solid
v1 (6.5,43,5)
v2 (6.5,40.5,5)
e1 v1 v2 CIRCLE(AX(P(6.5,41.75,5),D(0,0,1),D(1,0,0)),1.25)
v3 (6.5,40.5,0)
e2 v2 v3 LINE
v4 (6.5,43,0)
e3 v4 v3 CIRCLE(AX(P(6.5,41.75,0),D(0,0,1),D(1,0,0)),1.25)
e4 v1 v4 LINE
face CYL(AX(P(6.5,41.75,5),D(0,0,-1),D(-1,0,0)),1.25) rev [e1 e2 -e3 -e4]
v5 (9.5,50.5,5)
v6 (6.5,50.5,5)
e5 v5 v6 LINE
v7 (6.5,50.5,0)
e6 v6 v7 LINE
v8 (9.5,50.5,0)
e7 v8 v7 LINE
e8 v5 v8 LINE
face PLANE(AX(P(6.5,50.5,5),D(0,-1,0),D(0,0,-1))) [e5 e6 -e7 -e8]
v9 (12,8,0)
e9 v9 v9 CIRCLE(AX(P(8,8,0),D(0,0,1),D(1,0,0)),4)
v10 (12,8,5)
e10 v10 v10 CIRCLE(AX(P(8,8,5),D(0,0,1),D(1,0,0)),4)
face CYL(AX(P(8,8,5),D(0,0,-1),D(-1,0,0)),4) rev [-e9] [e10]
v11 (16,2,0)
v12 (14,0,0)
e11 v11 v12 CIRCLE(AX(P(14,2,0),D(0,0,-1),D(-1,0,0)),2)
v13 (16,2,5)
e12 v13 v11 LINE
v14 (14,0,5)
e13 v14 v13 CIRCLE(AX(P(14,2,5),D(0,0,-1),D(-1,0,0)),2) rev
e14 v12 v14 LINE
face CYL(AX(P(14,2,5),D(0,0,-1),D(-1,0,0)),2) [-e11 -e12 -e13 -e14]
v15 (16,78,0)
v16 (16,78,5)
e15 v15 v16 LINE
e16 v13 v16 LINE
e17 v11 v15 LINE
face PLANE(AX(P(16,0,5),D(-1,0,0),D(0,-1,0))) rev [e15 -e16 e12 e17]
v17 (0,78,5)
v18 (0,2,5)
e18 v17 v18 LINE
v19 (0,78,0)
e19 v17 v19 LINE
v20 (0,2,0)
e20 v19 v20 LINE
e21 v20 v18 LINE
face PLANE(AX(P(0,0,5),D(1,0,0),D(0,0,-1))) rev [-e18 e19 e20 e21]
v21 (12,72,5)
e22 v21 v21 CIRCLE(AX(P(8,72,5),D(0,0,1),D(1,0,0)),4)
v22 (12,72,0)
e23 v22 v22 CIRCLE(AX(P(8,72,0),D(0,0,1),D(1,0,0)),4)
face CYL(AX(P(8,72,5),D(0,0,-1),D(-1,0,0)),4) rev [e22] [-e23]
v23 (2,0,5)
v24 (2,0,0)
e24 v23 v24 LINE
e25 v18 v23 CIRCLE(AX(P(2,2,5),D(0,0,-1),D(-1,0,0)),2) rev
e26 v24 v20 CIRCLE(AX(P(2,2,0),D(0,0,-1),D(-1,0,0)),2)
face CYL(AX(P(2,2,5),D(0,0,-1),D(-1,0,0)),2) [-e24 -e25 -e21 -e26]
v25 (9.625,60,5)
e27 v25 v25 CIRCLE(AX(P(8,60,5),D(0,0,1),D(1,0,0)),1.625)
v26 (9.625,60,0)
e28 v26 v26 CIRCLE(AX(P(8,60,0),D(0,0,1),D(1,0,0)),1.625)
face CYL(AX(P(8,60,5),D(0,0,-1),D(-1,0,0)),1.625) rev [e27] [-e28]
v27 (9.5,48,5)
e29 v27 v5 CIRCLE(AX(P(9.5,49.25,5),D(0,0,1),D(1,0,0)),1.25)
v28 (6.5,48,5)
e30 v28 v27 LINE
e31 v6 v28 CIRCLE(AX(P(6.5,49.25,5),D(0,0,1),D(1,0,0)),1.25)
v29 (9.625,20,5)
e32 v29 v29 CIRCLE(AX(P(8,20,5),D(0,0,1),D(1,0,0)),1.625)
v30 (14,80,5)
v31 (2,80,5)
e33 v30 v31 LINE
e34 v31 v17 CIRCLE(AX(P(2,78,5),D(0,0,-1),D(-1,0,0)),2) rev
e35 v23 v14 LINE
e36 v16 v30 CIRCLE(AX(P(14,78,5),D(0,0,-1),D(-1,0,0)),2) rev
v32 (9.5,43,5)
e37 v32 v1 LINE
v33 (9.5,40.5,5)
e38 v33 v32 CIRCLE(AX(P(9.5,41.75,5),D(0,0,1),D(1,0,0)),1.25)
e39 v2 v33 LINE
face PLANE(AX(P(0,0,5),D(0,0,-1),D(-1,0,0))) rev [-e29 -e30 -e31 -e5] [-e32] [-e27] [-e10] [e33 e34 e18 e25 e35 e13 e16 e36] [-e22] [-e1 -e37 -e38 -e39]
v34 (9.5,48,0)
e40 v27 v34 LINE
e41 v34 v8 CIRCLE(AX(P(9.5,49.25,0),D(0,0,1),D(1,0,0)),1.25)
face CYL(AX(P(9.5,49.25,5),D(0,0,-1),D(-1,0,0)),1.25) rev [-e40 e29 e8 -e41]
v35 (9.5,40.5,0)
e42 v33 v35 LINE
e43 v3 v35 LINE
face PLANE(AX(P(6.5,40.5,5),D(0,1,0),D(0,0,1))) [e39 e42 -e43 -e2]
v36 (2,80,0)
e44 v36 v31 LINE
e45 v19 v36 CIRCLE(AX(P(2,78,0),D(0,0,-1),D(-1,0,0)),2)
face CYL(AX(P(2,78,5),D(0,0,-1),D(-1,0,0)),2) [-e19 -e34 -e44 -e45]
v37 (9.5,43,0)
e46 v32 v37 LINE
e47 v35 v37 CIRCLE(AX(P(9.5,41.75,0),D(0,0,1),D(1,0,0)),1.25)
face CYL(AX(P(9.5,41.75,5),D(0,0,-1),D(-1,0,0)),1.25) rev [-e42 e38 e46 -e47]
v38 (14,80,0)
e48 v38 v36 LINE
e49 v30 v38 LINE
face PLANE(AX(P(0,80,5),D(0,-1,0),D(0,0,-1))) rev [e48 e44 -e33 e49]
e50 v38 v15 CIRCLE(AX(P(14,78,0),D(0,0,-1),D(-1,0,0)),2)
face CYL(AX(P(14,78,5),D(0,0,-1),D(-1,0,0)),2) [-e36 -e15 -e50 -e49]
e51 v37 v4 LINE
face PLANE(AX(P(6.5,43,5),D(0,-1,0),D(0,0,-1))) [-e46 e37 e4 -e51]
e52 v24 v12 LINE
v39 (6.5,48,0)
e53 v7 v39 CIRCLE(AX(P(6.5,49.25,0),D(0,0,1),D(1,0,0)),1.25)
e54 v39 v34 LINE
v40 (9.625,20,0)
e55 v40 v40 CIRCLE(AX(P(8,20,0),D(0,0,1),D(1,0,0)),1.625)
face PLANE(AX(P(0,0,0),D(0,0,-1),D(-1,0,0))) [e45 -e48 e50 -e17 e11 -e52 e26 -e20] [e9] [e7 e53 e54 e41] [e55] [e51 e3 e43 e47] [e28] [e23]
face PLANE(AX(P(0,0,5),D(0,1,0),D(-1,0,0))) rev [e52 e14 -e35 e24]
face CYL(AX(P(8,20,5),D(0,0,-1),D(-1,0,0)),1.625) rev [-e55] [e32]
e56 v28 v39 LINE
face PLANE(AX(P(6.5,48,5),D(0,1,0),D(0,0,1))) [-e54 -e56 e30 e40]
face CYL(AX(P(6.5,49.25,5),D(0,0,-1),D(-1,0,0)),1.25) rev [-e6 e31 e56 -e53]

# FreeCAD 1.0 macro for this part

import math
import FreeCAD as App
import Part
import Sketcher

V = App.Vector
Q = App.Units.Quantity


def edges_at(feature, points):
    """Names of the edges that pass closest to the given points."""
    edges = feature.Shape.Edges
    near = lambda p: min(range(len(edges)), key=lambda i: edges[i].distToShape(Part.Vertex(*p))[0])
    return sorted({f"Edge{near(p) + 1}" for p in points})


def add_polygon(sketch, points):
    """Adds a closed chain of lines whose ends are joined by coincident constraints."""
    first, n = sketch.GeometryCount, len(points)
    for a, b in zip(points, points[1:] + points[:1]):
        sketch.addGeometry(Part.LineSegment(App.Vector(*a, 0), App.Vector(*b, 0)), False)
    for i in range(n):
        sketch.addConstraint(Sketcher.Constraint("Coincident", first + i, 2, first + (i + 1) % n, 1))

doc = App.newDocument("Part")
body = doc.addObject("PartDesign::Body", "Body")

# Sketch on XY plane
sketch1 = doc.addObject("Sketcher::SketchObject", "Sketch")
body.addObject(sketch1)
sketch1.AttachmentSupport = (doc.XY_Plane, [""])
sketch1.MapMode = "FlatFace"
add_polygon(sketch1, [(0, 80), (0, 0), (16, 0), (16, 80)])  # lines 0-3
sketch1.addGeometry(Part.Circle(V(8, 8, 0), V(0, 0, 1), 4), False)  # 4
sketch1.addGeometry(Part.Circle(V(8, 20, 0), V(0, 0, 1), 1.6), False)  # 5
sketch1.addGeometry(Part.ArcOfCircle(Part.Circle(V(6.5, 41.8, 0), V(0, 0, 1), 1.2), math.radians(90), math.radians(270)), False)  # 6
sketch1.addGeometry(Part.LineSegment(V(6.5, 43, 0), V(9.5, 43, 0)), False)  # 7
sketch1.addGeometry(Part.ArcOfCircle(Part.Circle(V(9.5, 41.8, 0), V(0, 0, 1), 1.2), math.radians(-90), math.radians(90)), False)  # 8
sketch1.addGeometry(Part.LineSegment(V(9.5, 40.5, 0), V(6.5, 40.5, 0)), False)  # 9
sketch1.addGeometry(Part.ArcOfCircle(Part.Circle(V(6.5, 49.2, 0), V(0, 0, 1), 1.2), math.radians(90), math.radians(270)), False)  # 10
sketch1.addGeometry(Part.LineSegment(V(6.5, 50.5, 0), V(9.5, 50.5, 0)), False)  # 11
sketch1.addGeometry(Part.ArcOfCircle(Part.Circle(V(9.5, 49.2, 0), V(0, 0, 1), 1.2), math.radians(-90), math.radians(90)), False)  # 12
sketch1.addGeometry(Part.LineSegment(V(9.5, 48, 0), V(6.5, 48, 0)), False)  # 13
sketch1.addGeometry(Part.Circle(V(8, 60, 0), V(0, 0, 1), 1.6), False)  # 14
sketch1.addGeometry(Part.Circle(V(8, 72, 0), V(0, 0, 1), 4), False)  # 15
sketch1.addConstraint([
    Sketcher.Constraint("Tangent", 6, 1, 7, 1),
    Sketcher.Constraint("Tangent", 7, 2, 8, 2),
    Sketcher.Constraint("Tangent", 8, 1, 9, 1),
    Sketcher.Constraint("Tangent", 9, 2, 6, 2),
    Sketcher.Constraint("Tangent", 10, 1, 11, 1),
    Sketcher.Constraint("Tangent", 11, 2, 12, 2),
    Sketcher.Constraint("Tangent", 12, 1, 13, 1),
    Sketcher.Constraint("Tangent", 13, 2, 10, 2),
    Sketcher.Constraint("Vertical", 0),
    Sketcher.Constraint("Horizontal", 1),
    Sketcher.Constraint("Vertical", 2),
    Sketcher.Constraint("Horizontal", 3),
    Sketcher.Constraint("Horizontal", 7),
    Sketcher.Constraint("Horizontal", 9),
    Sketcher.Constraint("Horizontal", 11),
    Sketcher.Constraint("Horizontal", 13),
    Sketcher.Constraint("Coincident", 0, 2, -1, 1),
    Sketcher.Constraint("Equal", 8, 10),
    Sketcher.Constraint("Equal", 5, 14),
    Sketcher.Constraint("Equal", 4, 15),
    Sketcher.Constraint("Vertical", 4, 3, 5, 3),
    Sketcher.Constraint("Vertical", 6, 3, 10, 3),
    Sketcher.Constraint("Vertical", 8, 3, 12, 3),
    Sketcher.Constraint("Vertical", 5, 3, 14, 3),
    Sketcher.Constraint("Vertical", 14, 3, 15, 3),
    Sketcher.Constraint("Diameter", 4, Q("8 mm")),
    Sketcher.Constraint("Diameter", 5, Q("3.25 mm")),
    Sketcher.Constraint("DistanceX", 1, 1, 1, 2, Q("16 mm")),
    Sketcher.Constraint("DistanceX", 7, 1, 7, 2, Q("3 mm")),
    Sketcher.Constraint("DistanceY", 0, 2, 0, 1, Q("80 mm")),
    Sketcher.Constraint("Radius", 6, Q("1.25 mm")),
    Sketcher.Constraint("DistanceX", -1, 1, 4, 3, Q("8 mm")),
    Sketcher.Constraint("DistanceY", -1, 1, 4, 3, Q("8 mm")),
    Sketcher.Constraint("DistanceY", -1, 1, 5, 3, Q("20 mm")),
    Sketcher.Constraint("DistanceY", -1, 1, 14, 3, Q("60 mm")),
    Sketcher.Constraint("DistanceY", -1, 1, 15, 3, Q("72 mm")),
    Sketcher.Constraint("DistanceY", -1, 1, 6, 1, Q("43 mm")),
    Sketcher.Constraint("DistanceY", -1, 1, 12, 1, Q("48 mm")),
    Sketcher.Constraint("DistanceX", -1, 1, 6, 3, Q("6.5 mm")),
])
pad1 = doc.addObject("PartDesign::Pad", "Pad")
body.addObject(pad1)
pad1.Profile = sketch1
pad1.Length = 5
doc.recompute()

fillet = doc.addObject("PartDesign::Fillet", "Fillet")
body.addObject(fillet)
fillet.Base = (pad1, edges_at(pad1, [
    (0, 80, 2.5),
    (16, 80, 2.5),
    (16, 0, 2.5),
    (0, 0, 2.5),
]))
fillet.Radius = 2

doc.recompute()
